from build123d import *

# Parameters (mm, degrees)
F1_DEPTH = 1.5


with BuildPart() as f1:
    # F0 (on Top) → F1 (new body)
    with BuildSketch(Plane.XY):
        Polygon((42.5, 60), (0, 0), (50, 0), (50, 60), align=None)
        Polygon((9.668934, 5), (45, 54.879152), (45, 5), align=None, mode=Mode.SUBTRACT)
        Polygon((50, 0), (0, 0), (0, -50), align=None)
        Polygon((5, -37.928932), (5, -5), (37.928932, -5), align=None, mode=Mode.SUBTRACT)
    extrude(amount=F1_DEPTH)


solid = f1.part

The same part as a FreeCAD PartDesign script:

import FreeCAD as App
import Part
import Sketcher
from FreeCAD import Vector
Q = App.Units.Quantity

doc = App.newDocument("Part")
body = doc.addObject("PartDesign::Body", "Body")

sketch1 = body.newObject("Sketcher::SketchObject", "Sketch")
sketch1.AttachmentSupport = (doc.getObject("XY_Plane"), [""])
sketch1.MapMode = "FlatFace"
sketch1.addGeometry([
    Part.LineSegment(Vector(42, 60, 0), Vector(0, 0, 0)),
    Part.LineSegment(Vector(0, 0, 0), Vector(0, -50, 0)),
    Part.LineSegment(Vector(0, -50, 0), Vector(50, 0, 0)),
    Part.LineSegment(Vector(50, 0, 0), Vector(50, 60, 0)),
    Part.LineSegment(Vector(50, 60, 0), Vector(42, 60, 0)),
    Part.LineSegment(Vector(38, -5, 0), Vector(5, -38, 0)),
    Part.LineSegment(Vector(5, -38, 0), Vector(5, -5, 0)),
    Part.LineSegment(Vector(5, -5, 0), Vector(38, -5, 0)),
    Part.LineSegment(Vector(45, 5, 0), Vector(10, 5, 0)),
    Part.LineSegment(Vector(10, 5, 0), Vector(45, 55, 0)),
    Part.LineSegment(Vector(45, 55, 0), Vector(45, 5, 0)),
], False)
sketch1.addConstraint([
    Sketcher.Constraint("Coincident", 0, 2, 1, 1),
    Sketcher.Constraint("Coincident", 1, 2, 2, 1),
    Sketcher.Constraint("Coincident", 2, 2, 3, 1),
    Sketcher.Constraint("Coincident", 3, 2, 4, 1),
    Sketcher.Constraint("Coincident", 4, 2, 0, 1),
    Sketcher.Constraint("Coincident", 5, 2, 6, 1),
    Sketcher.Constraint("Coincident", 6, 2, 7, 1),
    Sketcher.Constraint("Coincident", 7, 2, 5, 1),
    Sketcher.Constraint("Coincident", 8, 2, 9, 1),
    Sketcher.Constraint("Coincident", 9, 2, 10, 1),
    Sketcher.Constraint("Coincident", 10, 2, 8, 1),
    Sketcher.Constraint("Vertical", 1),
    Sketcher.Constraint("Vertical", 3),
    Sketcher.Constraint("Horizontal", 4),
    Sketcher.Constraint("Vertical", 6),
    Sketcher.Constraint("Horizontal", 7),
    Sketcher.Constraint("Horizontal", 8),
    Sketcher.Constraint("Vertical", 10),
    Sketcher.Constraint("Coincident", 0, 2, -1, 1),
    Sketcher.Constraint("PointOnObject", 2, 2, -1),
    Sketcher.Constraint("Parallel", 2, 5),
    Sketcher.Constraint("Parallel", 0, 9),
    Sketcher.Constraint("Equal", 7, 6),
    Sketcher.Constraint("DistanceY", 1, 2, 1, 1, Q("50 mm")),
    Sketcher.Constraint("DistanceY", 3, 1, 3, 2, Q("60 mm")),
    Sketcher.Constraint("DistanceX", 4, 2, 4, 1, Q("7.5 mm")),
    Sketcher.Constraint("DistanceX", -1, 1, 5, 2, Q("5 mm")),
    Sketcher.Constraint("DistanceY", 6, 2, -1, 1, Q("5 mm")),
    Sketcher.Constraint("DistanceY", -1, 1, 8, 2, Q("5 mm")),
    Sketcher.Constraint("DistanceX", -1, 1, 9, 2, Q("45 mm")),
    Sketcher.Constraint("DistanceX", 8, 2, 7, 2, Q("28.259998 mm")),
    Sketcher.Constraint("DistanceY", 10, 2, 10, 1, Q("49.879152 mm")),
])
pad1 = body.newObject("PartDesign::Pad", "Pad")
pad1.Profile = sketch1
pad1.Length = 1.5

doc.recompute()
